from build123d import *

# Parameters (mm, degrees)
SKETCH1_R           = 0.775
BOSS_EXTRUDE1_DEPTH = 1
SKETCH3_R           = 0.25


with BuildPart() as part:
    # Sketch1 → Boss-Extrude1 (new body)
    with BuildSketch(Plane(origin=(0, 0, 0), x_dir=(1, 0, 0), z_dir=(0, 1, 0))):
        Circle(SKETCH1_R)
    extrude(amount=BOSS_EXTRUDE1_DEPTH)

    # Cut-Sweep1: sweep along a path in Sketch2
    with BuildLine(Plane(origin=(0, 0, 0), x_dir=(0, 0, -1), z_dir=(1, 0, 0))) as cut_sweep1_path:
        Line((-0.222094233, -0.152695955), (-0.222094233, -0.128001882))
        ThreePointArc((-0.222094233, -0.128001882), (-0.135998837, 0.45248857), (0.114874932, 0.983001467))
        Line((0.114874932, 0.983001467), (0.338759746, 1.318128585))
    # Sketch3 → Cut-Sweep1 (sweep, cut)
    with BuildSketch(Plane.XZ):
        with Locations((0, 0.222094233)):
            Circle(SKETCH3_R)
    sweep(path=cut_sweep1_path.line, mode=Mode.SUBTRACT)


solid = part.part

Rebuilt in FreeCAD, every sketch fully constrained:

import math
import FreeCAD as App
import Part
import Sketcher

V = App.Vector
Q = App.Units.Quantity

doc = App.newDocument("Part")
body = doc.addObject("PartDesign::Body", "Body")

# Sketch on XZ plane
sketch1 = body.newObject("Sketcher::SketchObject", "Sketch")
sketch1.AttachmentSupport = (doc.getObject("XZ_Plane"), [""])
sketch1.MapMode = "FlatFace"
sketch1.addGeometry(Part.Circle(V(0, 0, 0), V(0, 0, 1), 0.775), False)
sketch1.addConstraint([
    Sketcher.Constraint("Coincident", 0, 3, -1, 1),
    Sketcher.Constraint("Diameter", 0, Q("1.55 mm")),
])
pad1 = body.newObject("PartDesign::Pad", "Pad")
pad1.Profile = sketch1
pad1.Length = 1
pad1.Reversed = True

# Sketch on XZ plane
sketch2 = body.newObject("Sketcher::SketchObject", "Sketch001")
sketch2.AttachmentSupport = (doc.getObject("XZ_Plane"), [""])
sketch2.MapMode = "FlatFace"
sketch2.addGeometry(Part.Circle(V(0, 0.222094, 0), V(0, 0, 1), 0.25), False)
sketch2.addConstraint([
    Sketcher.Constraint("PointOnObject", 0, 3, -2),
    Sketcher.Constraint("Diameter", 0, Q("0.5 mm")),
    Sketcher.Constraint("DistanceY", -1, 1, 0, 3, Q("0.222094 mm")),
])

# Sketch on YZ plane
sketch3 = body.newObject("Sketcher::SketchObject", "Sketch002")
sketch3.AttachmentSupport = (doc.getObject("YZ_Plane"), [""])
sketch3.MapMode = "FlatFace"
sketch3.addGeometry([
    Part.LineSegment(V(-0.152696, 0.222094, 0), V(-0.128002, 0.222094, 0)),
    Part.ArcOfCircle(Part.Circle(V(-0.128002, -1.777906, 0), V(0, 0, 1), 2), math.radians(56.254724), math.radians(90)),
    Part.LineSegment(V(0.983001, -0.114875, 0), V(1.318129, -0.33876, 0)),
], False)
sketch3.addConstraint([
    Sketcher.Constraint("Tangent", 0, 2, 1, 2),
    Sketcher.Constraint("Tangent", 1, 1, 2, 1),
    Sketcher.Constraint("Horizontal", 0),
    Sketcher.Constraint("Radius", 1, Q("2 mm")),
    Sketcher.Constraint("DistanceX", 1, 3, -1, 1, Q("0.128002 mm")),
    Sketcher.Constraint("DistanceX", -1, 1, 1, 1, Q("0.983001 mm")),
    Sketcher.Constraint("Distance", 2, Q("0.403032 mm")),
    Sketcher.Constraint("DistanceX", 0, 1, 0, 2, Q("0.024694 mm")),
    Sketcher.Constraint("DistanceY", 2, 2, -1, 1, Q("0.33876 mm")),
])
doc.recompute()

subtractivepipe = body.newObject("PartDesign::SubtractivePipe", "SubtractivePipe")
subtractivepipe.Profile = sketch2
subtractivepipe.Spine = (sketch3, ["Edge1", "Edge2", "Edge3"])

doc.recompute()
